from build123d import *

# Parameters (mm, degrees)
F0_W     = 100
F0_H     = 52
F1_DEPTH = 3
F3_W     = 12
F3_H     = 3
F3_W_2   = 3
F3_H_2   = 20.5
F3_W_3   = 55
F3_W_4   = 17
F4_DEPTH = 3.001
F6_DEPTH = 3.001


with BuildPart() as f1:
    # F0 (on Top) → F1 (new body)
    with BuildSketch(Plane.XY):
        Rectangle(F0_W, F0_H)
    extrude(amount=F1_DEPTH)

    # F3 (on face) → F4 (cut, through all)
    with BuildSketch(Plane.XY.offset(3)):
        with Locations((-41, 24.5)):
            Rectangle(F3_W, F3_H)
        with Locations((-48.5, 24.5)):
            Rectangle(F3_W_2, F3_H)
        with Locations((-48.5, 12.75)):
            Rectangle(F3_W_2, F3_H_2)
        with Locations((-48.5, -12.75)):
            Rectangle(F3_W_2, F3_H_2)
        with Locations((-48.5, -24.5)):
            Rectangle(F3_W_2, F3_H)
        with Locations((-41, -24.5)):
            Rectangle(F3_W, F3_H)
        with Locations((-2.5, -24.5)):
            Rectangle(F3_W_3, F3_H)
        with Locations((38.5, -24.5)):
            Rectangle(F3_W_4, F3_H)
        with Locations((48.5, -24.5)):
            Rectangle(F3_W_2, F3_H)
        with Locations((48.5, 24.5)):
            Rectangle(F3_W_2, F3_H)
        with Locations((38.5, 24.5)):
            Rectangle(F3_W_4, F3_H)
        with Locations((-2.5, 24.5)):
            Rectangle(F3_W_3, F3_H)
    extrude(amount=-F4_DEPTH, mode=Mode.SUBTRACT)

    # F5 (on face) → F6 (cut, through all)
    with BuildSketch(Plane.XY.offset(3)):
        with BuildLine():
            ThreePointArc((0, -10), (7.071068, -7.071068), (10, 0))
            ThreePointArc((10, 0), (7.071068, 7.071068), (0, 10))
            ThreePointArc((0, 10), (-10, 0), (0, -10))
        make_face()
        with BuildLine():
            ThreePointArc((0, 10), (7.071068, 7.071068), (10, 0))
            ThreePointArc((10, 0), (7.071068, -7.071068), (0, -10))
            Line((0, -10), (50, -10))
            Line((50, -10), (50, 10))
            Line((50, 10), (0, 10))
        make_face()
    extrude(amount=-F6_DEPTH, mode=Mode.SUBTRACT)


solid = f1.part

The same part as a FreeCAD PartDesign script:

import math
import FreeCAD as App
import Part
import Sketcher
from FreeCAD import Vector
Q = App.Units.Quantity


def add_polygon(sketch, points):
    """Adds a closed chain of lines whose ends are joined by coincident constraints."""
    first, n = sketch.GeometryCount, len(points)
    for a, b in zip(points, points[1:] + points[:1]):
        sketch.addGeometry(Part.LineSegment(App.Vector(*a, 0), App.Vector(*b, 0)), False)
    for i in range(n):
        sketch.addConstraint(Sketcher.Constraint("Coincident", first + i, 2, first + (i + 1) % n, 1))

doc = App.newDocument("Part")
body = doc.addObject("PartDesign::Body", "Body")

# Sketch on XY plane
sketch1 = body.newObject("Sketcher::SketchObject", "Sketch")
sketch1.AttachmentSupport = (doc.getObject("XY_Plane"), [""])
sketch1.MapMode = "FlatFace"
add_polygon(sketch1, [(-50, 26), (-50, -26), (50, -26), (50, 26)])  # lines 0-3
sketch1.addConstraint(Sketcher.Constraint("Vertical", 0))
sketch1.addConstraint(Sketcher.Constraint("Horizontal", 1))
sketch1.addConstraint(Sketcher.Constraint("Vertical", 2))
sketch1.addConstraint(Sketcher.Constraint("Horizontal", 3))
sketch1.addConstraint(Sketcher.Constraint("Symmetric", 0, 2, 2, 2, -1, 1))
sketch1.addConstraint(Sketcher.Constraint("DistanceX", 1, 1, 1, 2, Q("100 mm")))
sketch1.addConstraint(Sketcher.Constraint("DistanceY", 0, 2, 0, 1, Q("52 mm")))
pad1 = body.newObject("PartDesign::Pad", "Pad")
pad1.Profile = sketch1
pad1.Length = 3

# Sketch on XY plane
sketch2 = body.newObject("Sketcher::SketchObject", "Sketch001")
sketch2.AttachmentSupport = (doc.getObject("XY_Plane"), [""])
sketch2.MapMode = "FlatFace"
sketch2.AttachmentOffset = App.Placement(Vector(0, 0, 3), App.Rotation())
add_polygon(sketch2, [(-35, 23), (-35, 26), (-50, 26), (-50, 2.5), (-47, 2.5), (-47, 23)])  # lines 0-5
add_polygon(sketch2, [(-50, -2.5), (-50, -26), (-35, -26), (-35, -23), (-47, -23), (-47, -2.5)])  # lines 6-11
add_polygon(sketch2, [(-30, -23), (-30, -26), (25, -26), (25, -23)])  # lines 12-15
add_polygon(sketch2, [(30, -23), (30, -26), (50, -26), (50, -23)])  # lines 16-19
add_polygon(sketch2, [(50, 23), (50, 26), (30, 26), (30, 23)])  # lines 20-23
add_polygon(sketch2, [(-30, 26), (-30, 23), (25, 23), (25, 26)])  # lines 24-27
sketch2.addConstraint(Sketcher.Constraint("Vertical", 0))
sketch2.addConstraint(Sketcher.Constraint("Horizontal", 1))
sketch2.addConstraint(Sketcher.Constraint("Vertical", 2))
sketch2.addConstraint(Sketcher.Constraint("Horizontal", 3))
sketch2.addConstraint(Sketcher.Constraint("Vertical", 4))
sketch2.addConstraint(Sketcher.Constraint("Horizontal", 5))
sketch2.addConstraint(Sketcher.Constraint("Vertical", 6))
sketch2.addConstraint(Sketcher.Constraint("Horizontal", 7))
sketch2.addConstraint(Sketcher.Constraint("Vertical", 8))
sketch2.addConstraint(Sketcher.Constraint("Horizontal", 9))
sketch2.addConstraint(Sketcher.Constraint("Vertical", 10))
sketch2.addConstraint(Sketcher.Constraint("Horizontal", 11))
sketch2.addConstraint(Sketcher.Constraint("Vertical", 12))
sketch2.addConstraint(Sketcher.Constraint("Horizontal", 13))
sketch2.addConstraint(Sketcher.Constraint("Vertical", 14))
sketch2.addConstraint(Sketcher.Constraint("Horizontal", 15))
sketch2.addConstraint(Sketcher.Constraint("Vertical", 16))
sketch2.addConstraint(Sketcher.Constraint("Horizontal", 17))
sketch2.addConstraint(Sketcher.Constraint("Vertical", 18))
sketch2.addConstraint(Sketcher.Constraint("Horizontal", 19))
sketch2.addConstraint(Sketcher.Constraint("Vertical", 20))
sketch2.addConstraint(Sketcher.Constraint("Horizontal", 21))
sketch2.addConstraint(Sketcher.Constraint("Vertical", 22))
sketch2.addConstraint(Sketcher.Constraint("Horizontal", 23))
sketch2.addConstraint(Sketcher.Constraint("Vertical", 24))
sketch2.addConstraint(Sketcher.Constraint("Horizontal", 25))
sketch2.addConstraint(Sketcher.Constraint("Vertical", 26))
sketch2.addConstraint(Sketcher.Constraint("Horizontal", 27))
sketch2.addConstraint(Sketcher.Constraint("Symmetric", 1, 2, 17, 2, -1, 1))
sketch2.addConstraint(Sketcher.Constraint("Symmetric", 6, 2, 20, 2, -1, 1))
sketch2.addConstraint(Sketcher.Constraint("Symmetric", 12, 2, 21, 2, -1, 1))
sketch2.addConstraint(Sketcher.Constraint("Symmetric", 19, 2, 24, 2, -1, 1))
sketch2.addConstraint(Sketcher.Constraint("Symmetric", 12, 2, 16, 2, -2))
sketch2.addConstraint(Sketcher.Constraint("Symmetric", 5, 2, 8, 2, -1))
sketch2.addConstraint(Sketcher.Constraint("Symmetric", 3, 2, 10, 2, -1))
sketch2.addConstraint(Sketcher.Constraint("Symmetric", 18, 2, 23, 2, -1))
sketch2.addConstraint(Sketcher.Constraint("Symmetric", 14, 2, 25, 2, -1))
sketch2.addConstraint(Sketcher.Constraint("Horizontal", 9, 2, 14, 2))
sketch2.addConstraint(Sketcher.Constraint("Horizontal", 21, 2, 26, 2))
sketch2.addConstraint(Sketcher.Constraint("Equal", 11, 0))
sketch2.addConstraint(Sketcher.Constraint("DistanceX", 1, 2, 1, 1, Q("15 mm")))
sketch2.addConstraint(Sketcher.Constraint("DistanceX", 3, 1, 3, 2, Q("3 mm")))
sketch2.addConstraint(Sketcher.Constraint("DistanceX", 13, 1, 13, 2, Q("55 mm")))
sketch2.addConstraint(Sketcher.Constraint("DistanceX", 17, 1, 17, 2, Q("20 mm")))
sketch2.addConstraint(Sketcher.Constraint("DistanceY", 2, 2, 2, 1, Q("23.5 mm")))
sketch2.addConstraint(Sketcher.Constraint("DistanceX", 0, 2, -1, 1, Q("35 mm")))
sketch2.addConstraint(Sketcher.Constraint("DistanceY", -1, 1, 0, 2, Q("26 mm")))
pocket1 = body.newObject("PartDesign::Pocket", "Pocket")
pocket1.Profile = sketch2
pocket1.Type = "ThroughAll"

# Sketch on XY plane
sketch3 = body.newObject("Sketcher::SketchObject", "Sketch002")
sketch3.AttachmentSupport = (doc.getObject("XY_Plane"), [""])
sketch3.MapMode = "FlatFace"
sketch3.AttachmentOffset = App.Placement(Vector(0, 0, 3), App.Rotation())
sketch3.addGeometry(Part.ArcOfCircle(Part.Circle(Vector(0, 0, 0), Vector(0, 0, 1), 10), math.radians(90), math.radians(270)), False)
sketch3.addGeometry(Part.LineSegment(Vector(0, -10, 0), Vector(50, -10, 0)), False)
sketch3.addGeometry(Part.LineSegment(Vector(50, -10, 0), Vector(50, 10, 0)), False)
sketch3.addGeometry(Part.LineSegment(Vector(50, 10, 0), Vector(0, 10, 0)), False)
sketch3.addConstraint(Sketcher.Constraint("Tangent", 0, 2, 1, 1))
sketch3.addConstraint(Sketcher.Constraint("Coincident", 1, 2, 2, 1))
sketch3.addConstraint(Sketcher.Constraint("Coincident", 2, 2, 3, 1))
sketch3.addConstraint(Sketcher.Constraint("Tangent", 3, 2, 0, 1))
sketch3.addConstraint(Sketcher.Constraint("Horizontal", 1))
sketch3.addConstraint(Sketcher.Constraint("Vertical", 2))
sketch3.addConstraint(Sketcher.Constraint("Horizontal", 3))
sketch3.addConstraint(Sketcher.Constraint("Coincident", 0, 3, -1, 1))
sketch3.addConstraint(Sketcher.Constraint("Radius", 0, Q("10 mm")))
sketch3.addConstraint(Sketcher.Constraint("DistanceX", 1, 1, 1, 2, Q("50 mm")))
pocket2 = body.newObject("PartDesign::Pocket", "Pocket001")
pocket2.Profile = sketch3
pocket2.Type = "ThroughAll"

doc.recompute()
